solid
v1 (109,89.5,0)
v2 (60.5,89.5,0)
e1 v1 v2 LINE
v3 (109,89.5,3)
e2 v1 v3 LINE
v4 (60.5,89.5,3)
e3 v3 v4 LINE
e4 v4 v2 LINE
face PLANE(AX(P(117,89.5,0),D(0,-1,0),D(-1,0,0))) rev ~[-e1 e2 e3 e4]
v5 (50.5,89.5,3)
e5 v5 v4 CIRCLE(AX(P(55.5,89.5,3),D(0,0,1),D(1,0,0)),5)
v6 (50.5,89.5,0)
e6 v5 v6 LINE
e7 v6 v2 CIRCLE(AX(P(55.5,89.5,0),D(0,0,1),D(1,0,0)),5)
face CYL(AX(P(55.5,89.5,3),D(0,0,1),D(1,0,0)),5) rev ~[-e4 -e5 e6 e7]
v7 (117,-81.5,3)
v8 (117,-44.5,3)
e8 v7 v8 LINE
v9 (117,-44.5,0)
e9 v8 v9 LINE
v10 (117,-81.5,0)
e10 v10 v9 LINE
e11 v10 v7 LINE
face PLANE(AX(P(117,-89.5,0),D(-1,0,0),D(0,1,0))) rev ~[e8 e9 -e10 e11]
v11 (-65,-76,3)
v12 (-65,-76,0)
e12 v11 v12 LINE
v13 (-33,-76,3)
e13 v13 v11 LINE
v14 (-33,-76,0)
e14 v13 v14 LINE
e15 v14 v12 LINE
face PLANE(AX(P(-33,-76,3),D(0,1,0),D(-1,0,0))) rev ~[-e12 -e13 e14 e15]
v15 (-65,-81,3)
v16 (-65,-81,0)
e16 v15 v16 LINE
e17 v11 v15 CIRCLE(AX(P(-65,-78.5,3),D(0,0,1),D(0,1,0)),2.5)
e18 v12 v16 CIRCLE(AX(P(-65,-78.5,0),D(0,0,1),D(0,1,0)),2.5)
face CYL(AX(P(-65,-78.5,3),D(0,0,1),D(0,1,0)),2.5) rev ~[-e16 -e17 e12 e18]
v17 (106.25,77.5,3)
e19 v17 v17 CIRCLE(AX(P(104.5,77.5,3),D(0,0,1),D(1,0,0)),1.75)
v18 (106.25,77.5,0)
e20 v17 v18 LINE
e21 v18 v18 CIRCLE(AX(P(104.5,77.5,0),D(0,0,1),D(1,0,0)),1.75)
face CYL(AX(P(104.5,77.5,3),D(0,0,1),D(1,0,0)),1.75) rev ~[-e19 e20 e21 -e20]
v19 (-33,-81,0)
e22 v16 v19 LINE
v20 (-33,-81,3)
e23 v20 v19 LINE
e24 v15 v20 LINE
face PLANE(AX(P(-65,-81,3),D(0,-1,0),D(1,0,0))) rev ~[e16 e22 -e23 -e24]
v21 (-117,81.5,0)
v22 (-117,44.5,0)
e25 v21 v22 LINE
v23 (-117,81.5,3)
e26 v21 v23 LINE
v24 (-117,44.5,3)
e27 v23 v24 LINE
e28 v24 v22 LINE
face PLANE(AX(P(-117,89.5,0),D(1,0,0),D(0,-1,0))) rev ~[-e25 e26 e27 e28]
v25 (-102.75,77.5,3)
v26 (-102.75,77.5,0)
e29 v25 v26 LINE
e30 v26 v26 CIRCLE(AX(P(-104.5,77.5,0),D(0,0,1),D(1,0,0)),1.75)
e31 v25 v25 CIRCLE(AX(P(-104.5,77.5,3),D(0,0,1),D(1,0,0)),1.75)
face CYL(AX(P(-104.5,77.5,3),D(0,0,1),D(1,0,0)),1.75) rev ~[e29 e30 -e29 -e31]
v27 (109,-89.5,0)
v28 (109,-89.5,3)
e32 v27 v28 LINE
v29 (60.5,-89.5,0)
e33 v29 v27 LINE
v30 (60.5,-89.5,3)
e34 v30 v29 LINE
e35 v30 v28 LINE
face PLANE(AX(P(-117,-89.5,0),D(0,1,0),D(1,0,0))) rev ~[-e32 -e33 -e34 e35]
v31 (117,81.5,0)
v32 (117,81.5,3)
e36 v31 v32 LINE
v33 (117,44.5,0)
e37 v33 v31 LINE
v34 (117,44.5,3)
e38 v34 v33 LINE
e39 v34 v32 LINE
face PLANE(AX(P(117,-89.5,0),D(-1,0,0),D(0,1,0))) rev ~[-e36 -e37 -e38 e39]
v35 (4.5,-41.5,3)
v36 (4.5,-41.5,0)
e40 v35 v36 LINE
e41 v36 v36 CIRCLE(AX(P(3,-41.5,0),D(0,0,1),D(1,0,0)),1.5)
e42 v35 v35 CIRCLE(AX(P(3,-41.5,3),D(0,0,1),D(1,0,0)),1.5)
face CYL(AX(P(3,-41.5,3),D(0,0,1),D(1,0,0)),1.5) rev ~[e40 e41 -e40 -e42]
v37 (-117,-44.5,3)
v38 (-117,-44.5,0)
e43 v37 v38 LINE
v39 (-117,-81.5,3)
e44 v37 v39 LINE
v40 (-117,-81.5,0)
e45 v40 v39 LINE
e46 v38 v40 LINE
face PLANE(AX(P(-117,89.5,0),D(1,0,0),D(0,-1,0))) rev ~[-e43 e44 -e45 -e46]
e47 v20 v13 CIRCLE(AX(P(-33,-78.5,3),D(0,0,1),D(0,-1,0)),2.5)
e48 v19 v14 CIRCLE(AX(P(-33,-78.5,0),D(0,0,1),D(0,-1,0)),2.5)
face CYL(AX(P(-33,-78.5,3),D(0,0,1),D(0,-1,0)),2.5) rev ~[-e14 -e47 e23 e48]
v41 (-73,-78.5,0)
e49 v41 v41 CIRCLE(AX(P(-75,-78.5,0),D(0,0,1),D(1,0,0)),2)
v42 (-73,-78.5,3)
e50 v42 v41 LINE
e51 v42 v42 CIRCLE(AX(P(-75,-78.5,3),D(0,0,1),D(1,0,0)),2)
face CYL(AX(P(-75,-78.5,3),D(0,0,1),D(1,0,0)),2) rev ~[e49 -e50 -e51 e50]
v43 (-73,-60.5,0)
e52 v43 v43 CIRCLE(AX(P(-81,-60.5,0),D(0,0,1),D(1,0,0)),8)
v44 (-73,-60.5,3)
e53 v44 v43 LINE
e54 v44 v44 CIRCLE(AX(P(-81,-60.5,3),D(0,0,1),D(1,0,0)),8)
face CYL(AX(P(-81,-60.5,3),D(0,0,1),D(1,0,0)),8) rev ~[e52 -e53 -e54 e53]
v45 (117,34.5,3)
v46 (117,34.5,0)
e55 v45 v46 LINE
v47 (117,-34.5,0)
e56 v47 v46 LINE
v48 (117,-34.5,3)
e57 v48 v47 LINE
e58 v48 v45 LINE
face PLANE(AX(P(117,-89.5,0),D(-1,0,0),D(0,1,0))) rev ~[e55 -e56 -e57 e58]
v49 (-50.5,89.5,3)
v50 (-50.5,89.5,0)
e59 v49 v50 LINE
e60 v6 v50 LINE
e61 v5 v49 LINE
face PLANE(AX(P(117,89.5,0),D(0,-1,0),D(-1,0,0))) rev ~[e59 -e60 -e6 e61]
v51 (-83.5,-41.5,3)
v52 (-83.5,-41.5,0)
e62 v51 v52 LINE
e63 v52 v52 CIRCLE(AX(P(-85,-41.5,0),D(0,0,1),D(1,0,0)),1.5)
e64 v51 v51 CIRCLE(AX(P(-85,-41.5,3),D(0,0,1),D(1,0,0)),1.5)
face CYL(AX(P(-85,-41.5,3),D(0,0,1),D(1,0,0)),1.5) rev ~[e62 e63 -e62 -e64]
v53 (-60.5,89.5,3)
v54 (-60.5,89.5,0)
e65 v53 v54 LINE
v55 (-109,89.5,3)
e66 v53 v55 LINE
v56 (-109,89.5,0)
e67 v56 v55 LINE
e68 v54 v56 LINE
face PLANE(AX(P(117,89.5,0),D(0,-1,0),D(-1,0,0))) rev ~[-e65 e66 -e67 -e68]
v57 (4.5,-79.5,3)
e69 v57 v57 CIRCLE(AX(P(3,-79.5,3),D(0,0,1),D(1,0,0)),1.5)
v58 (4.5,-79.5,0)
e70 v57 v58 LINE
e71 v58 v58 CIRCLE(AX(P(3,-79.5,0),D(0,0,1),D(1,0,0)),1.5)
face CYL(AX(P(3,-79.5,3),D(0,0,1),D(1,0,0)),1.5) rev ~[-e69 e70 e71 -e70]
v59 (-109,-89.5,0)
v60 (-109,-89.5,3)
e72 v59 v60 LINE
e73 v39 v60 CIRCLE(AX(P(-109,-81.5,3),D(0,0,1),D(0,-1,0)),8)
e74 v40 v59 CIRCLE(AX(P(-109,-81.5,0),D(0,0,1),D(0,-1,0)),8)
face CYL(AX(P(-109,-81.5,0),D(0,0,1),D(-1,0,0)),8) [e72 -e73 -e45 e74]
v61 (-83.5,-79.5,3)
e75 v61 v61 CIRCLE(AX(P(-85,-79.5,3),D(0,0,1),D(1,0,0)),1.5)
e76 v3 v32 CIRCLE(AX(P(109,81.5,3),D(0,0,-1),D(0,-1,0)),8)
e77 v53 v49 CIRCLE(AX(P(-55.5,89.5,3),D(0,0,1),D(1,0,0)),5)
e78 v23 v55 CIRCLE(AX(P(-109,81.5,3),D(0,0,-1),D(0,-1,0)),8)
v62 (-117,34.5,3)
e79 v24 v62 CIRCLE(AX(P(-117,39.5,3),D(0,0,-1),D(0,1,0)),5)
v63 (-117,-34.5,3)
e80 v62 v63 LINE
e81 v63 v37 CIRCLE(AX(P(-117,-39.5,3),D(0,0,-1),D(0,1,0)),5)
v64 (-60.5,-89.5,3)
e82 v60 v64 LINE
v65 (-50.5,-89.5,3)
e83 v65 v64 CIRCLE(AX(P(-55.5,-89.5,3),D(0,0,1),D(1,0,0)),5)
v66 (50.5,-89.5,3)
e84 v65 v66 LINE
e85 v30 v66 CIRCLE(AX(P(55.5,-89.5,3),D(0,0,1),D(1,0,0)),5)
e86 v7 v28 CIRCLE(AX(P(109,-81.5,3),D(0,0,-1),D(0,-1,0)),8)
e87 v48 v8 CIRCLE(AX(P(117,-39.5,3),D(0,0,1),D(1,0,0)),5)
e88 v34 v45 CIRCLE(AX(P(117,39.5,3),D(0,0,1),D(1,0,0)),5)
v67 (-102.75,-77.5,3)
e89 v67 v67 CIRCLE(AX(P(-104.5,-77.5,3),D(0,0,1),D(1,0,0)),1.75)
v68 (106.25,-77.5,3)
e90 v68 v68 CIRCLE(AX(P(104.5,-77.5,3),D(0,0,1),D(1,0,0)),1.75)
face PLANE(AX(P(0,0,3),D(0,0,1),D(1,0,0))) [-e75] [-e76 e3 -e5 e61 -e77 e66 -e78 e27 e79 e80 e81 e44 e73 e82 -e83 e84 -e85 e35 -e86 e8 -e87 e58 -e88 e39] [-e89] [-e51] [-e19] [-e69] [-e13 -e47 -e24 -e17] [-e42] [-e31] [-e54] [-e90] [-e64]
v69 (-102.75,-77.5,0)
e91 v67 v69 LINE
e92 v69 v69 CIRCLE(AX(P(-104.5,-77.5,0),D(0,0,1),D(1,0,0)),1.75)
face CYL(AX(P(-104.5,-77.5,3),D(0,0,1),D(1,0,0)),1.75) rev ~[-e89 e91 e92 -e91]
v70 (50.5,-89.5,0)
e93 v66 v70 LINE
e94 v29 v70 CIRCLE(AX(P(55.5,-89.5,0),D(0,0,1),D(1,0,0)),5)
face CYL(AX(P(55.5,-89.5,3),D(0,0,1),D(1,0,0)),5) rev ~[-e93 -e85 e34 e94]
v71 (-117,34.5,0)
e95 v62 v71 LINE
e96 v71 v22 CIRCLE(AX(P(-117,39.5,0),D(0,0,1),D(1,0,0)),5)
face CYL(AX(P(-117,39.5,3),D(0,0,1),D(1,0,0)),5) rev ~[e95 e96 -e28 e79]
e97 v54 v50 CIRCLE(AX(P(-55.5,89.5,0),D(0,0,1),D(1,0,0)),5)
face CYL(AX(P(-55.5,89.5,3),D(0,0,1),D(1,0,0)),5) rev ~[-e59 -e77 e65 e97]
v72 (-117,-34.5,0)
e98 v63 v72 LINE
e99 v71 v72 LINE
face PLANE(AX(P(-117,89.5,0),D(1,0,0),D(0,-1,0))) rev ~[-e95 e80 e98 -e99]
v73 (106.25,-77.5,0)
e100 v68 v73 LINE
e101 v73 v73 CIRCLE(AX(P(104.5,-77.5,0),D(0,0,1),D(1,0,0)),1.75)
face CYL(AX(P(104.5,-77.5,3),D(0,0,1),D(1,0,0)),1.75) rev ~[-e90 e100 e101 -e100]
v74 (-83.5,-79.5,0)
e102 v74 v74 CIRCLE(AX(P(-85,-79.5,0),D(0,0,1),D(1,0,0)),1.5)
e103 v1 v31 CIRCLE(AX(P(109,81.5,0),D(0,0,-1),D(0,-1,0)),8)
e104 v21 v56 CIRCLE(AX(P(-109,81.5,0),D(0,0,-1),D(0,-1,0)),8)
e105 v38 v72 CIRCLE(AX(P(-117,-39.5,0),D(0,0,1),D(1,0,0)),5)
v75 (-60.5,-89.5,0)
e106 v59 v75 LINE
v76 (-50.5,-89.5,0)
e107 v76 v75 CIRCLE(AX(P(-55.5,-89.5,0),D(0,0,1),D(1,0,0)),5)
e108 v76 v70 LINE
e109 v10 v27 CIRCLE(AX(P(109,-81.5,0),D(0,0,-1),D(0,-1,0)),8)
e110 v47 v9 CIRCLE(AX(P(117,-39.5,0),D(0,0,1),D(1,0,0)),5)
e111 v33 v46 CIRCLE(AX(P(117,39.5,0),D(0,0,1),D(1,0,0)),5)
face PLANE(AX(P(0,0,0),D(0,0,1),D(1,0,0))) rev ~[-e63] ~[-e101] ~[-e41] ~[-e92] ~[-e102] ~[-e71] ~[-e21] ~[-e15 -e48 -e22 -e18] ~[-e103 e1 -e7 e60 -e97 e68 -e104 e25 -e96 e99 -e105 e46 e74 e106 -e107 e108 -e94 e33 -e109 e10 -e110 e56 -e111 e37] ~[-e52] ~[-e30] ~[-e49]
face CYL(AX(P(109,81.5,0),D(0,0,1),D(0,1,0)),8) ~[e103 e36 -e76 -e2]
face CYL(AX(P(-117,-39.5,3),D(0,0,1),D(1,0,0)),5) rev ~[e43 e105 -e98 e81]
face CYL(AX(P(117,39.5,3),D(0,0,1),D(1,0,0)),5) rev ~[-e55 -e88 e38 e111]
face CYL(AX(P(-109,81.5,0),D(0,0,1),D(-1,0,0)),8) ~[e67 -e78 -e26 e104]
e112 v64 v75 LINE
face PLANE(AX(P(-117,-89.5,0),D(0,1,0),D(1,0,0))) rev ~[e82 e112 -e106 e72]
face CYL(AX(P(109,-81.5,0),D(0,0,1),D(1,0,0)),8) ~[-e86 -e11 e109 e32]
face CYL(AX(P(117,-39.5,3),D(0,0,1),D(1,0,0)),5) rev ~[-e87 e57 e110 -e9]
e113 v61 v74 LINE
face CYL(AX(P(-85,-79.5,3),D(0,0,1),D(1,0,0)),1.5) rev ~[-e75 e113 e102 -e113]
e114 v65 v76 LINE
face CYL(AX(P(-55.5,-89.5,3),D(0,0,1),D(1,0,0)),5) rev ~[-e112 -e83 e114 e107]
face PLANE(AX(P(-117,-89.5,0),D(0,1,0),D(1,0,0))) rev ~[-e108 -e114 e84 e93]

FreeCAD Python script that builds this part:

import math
import FreeCAD as App
import Part
import Sketcher


def edges_at(feature, points):
    """Names of the edges that pass closest to the given points."""
    edges = feature.Shape.Edges
    near = lambda p: min(range(len(edges)), key=lambda i: edges[i].distToShape(Part.Vertex(*p))[0])
    return sorted({f"Edge{near(p) + 1}" for p in points})

doc = App.newDocument("Part")
body = doc.addObject("PartDesign::Body", "Body")

# Sketch on XY plane
sketch1 = body.newObject("Sketcher::SketchObject", "Sketch")
sketch1.AttachmentSupport = (doc.getObject("XY_Plane"), [""])
sketch1.MapMode = "FlatFace"
sketch1.addGeometry([
    Part.LineSegment(App.Vector(-117, 90, 0), App.Vector(-117, -90, 0)),
    Part.LineSegment(App.Vector(-117, -90, 0), App.Vector(117, -90, 0)),
    Part.LineSegment(App.Vector(117, -90, 0), App.Vector(117, 90, 0)),
    Part.LineSegment(App.Vector(117, 90, 0), App.Vector(-117, 90, 0)),
], False)
sketch1.addConstraint([
    Sketcher.Constraint("Coincident", 0, 2, 1, 1),
    Sketcher.Constraint("Coincident", 1, 2, 2, 1),
    Sketcher.Constraint("Coincident", 2, 2, 3, 1),
    Sketcher.Constraint("Coincident", 3, 2, 0, 1),
    Sketcher.Constraint("Vertical", 0),
    Sketcher.Constraint("Horizontal", 1),
    Sketcher.Constraint("Vertical", 2),
    Sketcher.Constraint("Horizontal", 3),
    Sketcher.Constraint("Symmetric", 0, 2, 2, 2, -1, 1),
    Sketcher.Constraint("DistanceX", 1, 1, 1, 2, 234.0),
    Sketcher.Constraint("DistanceY", 0, 2, 0, 1, 179.0),
])
pad1 = body.newObject("PartDesign::Pad", "Pad")
pad1.Profile = sketch1
pad1.Length = 3
doc.recompute()

fillet = body.newObject("PartDesign::Fillet", "Fillet")
fillet.Base = (pad1, edges_at(pad1, [
    (117, -89.5, 1.5),
    (-117, -89.5, 1.5),
    (-117, 89.5, 1.5),
    (117, 89.5, 1.5),
]))
fillet.Radius = 8

# Sketch on XY plane
sketch2 = body.newObject("Sketcher::SketchObject", "Sketch001")
sketch2.AttachmentSupport = (doc.getObject("XY_Plane"), [""])
sketch2.MapMode = "FlatFace"
sketch2.AttachmentOffset = App.Placement(App.Vector(0, 0, 3), App.Rotation())
sketch2.addGeometry([
    Part.LineSegment(App.Vector(117, -44, 0), App.Vector(117, -34, 0)),  # 0
    Part.ArcOfCircle(Part.Circle(App.Vector(117, -40, 0), App.Vector(0, 0, 1), 5), math.radians(90), math.radians(270)),  # 1
    Part.ArcOfCircle(Part.Circle(App.Vector(56, -90, 0), App.Vector(0, 0, 1), 5), math.radians(0), math.radians(180)),  # 2
    Part.LineSegment(App.Vector(50, -90, 0), App.Vector(60, -90, 0)),  # 3
    Part.LineSegment(App.Vector(-117, -34, 0), App.Vector(-117, -44, 0)),  # 4
    Part.ArcOfCircle(Part.Circle(App.Vector(-117, -40, 0), App.Vector(0, 0, 1), 5), math.radians(-90), math.radians(90)),  # 5
    Part.ArcOfCircle(Part.Circle(App.Vector(-56, -90, 0), App.Vector(0, 0, 1), 5), math.radians(0), math.radians(180)),  # 6
    Part.LineSegment(App.Vector(-60, -90, 0), App.Vector(-50, -90, 0)),  # 7
    Part.LineSegment(App.Vector(-117, 44, 0), App.Vector(-117, 34, 0)),  # 8
    Part.ArcOfCircle(Part.Circle(App.Vector(-117, 40, 0), App.Vector(0, 0, 1), 5), math.radians(-90), math.radians(90)),  # 9
    Part.ArcOfCircle(Part.Circle(App.Vector(117, 40, 0), App.Vector(0, 0, 1), 5), math.radians(90), math.radians(270)),  # 10
    Part.LineSegment(App.Vector(117, 34, 0), App.Vector(117, 44, 0)),  # 11
    Part.LineSegment(App.Vector(60, 90, 0), App.Vector(50, 90, 0)),  # 12
    Part.ArcOfCircle(Part.Circle(App.Vector(56, 90, 0), App.Vector(0, 0, 1), 5), math.radians(180), math.radians(360)),  # 13
    Part.ArcOfCircle(Part.Circle(App.Vector(-56, 90, 0), App.Vector(0, 0, 1), 5), math.radians(180), math.radians(360)),  # 14
    Part.LineSegment(App.Vector(-50, 90, 0), App.Vector(-60, 90, 0)),  # 15
], False)
sketch2.addConstraint([
    Sketcher.Constraint("Coincident", 0, 1, 1, 2),
    Sketcher.Constraint("Coincident", 1, 1, 0, 2),
    Sketcher.Constraint("Coincident", 2, 1, 3, 2),
    Sketcher.Constraint("Coincident", 3, 1, 2, 2),
    Sketcher.Constraint("Coincident", 4, 1, 5, 2),
    Sketcher.Constraint("Coincident", 5, 1, 4, 2),
    Sketcher.Constraint("Coincident", 6, 1, 7, 2),
    Sketcher.Constraint("Coincident", 7, 1, 6, 2),
    Sketcher.Constraint("Coincident", 8, 1, 9, 2),
    Sketcher.Constraint("Coincident", 9, 1, 8, 2),
    Sketcher.Constraint("Coincident", 10, 1, 11, 2),
    Sketcher.Constraint("Coincident", 11, 1, 10, 2),
    Sketcher.Constraint("Coincident", 12, 1, 13, 2),
    Sketcher.Constraint("Coincident", 13, 1, 12, 2),
    Sketcher.Constraint("Coincident", 14, 1, 15, 2),
    Sketcher.Constraint("Coincident", 15, 1, 14, 2),
    Sketcher.Constraint("Vertical", 0),
    Sketcher.Constraint("Horizontal", 3),
    Sketcher.Constraint("Vertical", 4),
    Sketcher.Constraint("Horizontal", 7),
    Sketcher.Constraint("Vertical", 8),
    Sketcher.Constraint("Vertical", 11),
    Sketcher.Constraint("Horizontal", 12),
    Sketcher.Constraint("Horizontal", 15),
    Sketcher.Constraint("Equal", 1, 2),
    Sketcher.Constraint("Equal", 2, 5),
    Sketcher.Constraint("Equal", 5, 6),
    Sketcher.Constraint("Equal", 6, 9),
    Sketcher.Constraint("Equal", 9, 10),
    Sketcher.Constraint("Equal", 10, 13),
    Sketcher.Constraint("Equal", 13, 14),
    Sketcher.Constraint("Symmetric", 1, 3, 9, 3, -1, 1),
    Sketcher.Constraint("Symmetric", 5, 3, 10, 3, -1, 1),
    Sketcher.Constraint("Symmetric", 6, 3, 13, 3, -1, 1),
    Sketcher.Constraint("Symmetric", 2, 3, 14, 3, -1, 1),
    Sketcher.Constraint("Symmetric", 1, 3, 5, 3, -2),
    Sketcher.Constraint("Symmetric", 2, 3, 6, 3, -2),
    Sketcher.Constraint("Horizontal", 6, 3, 2, 1),
    Sketcher.Constraint("Horizontal", 3, 1, 6, 1),
    Sketcher.Constraint("Horizontal", 14, 3, 12, 1),
    Sketcher.Constraint("Horizontal", 13, 1, 14, 1),
    Sketcher.Constraint("Vertical", 10, 3, 0, 1),
    Sketcher.Constraint("Vertical", 9, 3, 4, 1),
    Sketcher.Constraint("Vertical", 5, 1, 8, 1),
    Sketcher.Constraint("Vertical", 1, 1, 10, 1),
    Sketcher.Constraint("Radius", 1, 5.0),
    Sketcher.Constraint("DistanceY", 2, 3, 1, 3, 50.0),
    Sketcher.Constraint("DistanceX", 2, 3, 1, 3, 61.5),
    Sketcher.Constraint("DistanceX", -1, 1, 1, 3, 117.0),
    Sketcher.Constraint("DistanceY", 5, 3, 9, 3, 79.0),
])
pocket1 = body.newObject("PartDesign::Pocket", "Pocket")
pocket1.Profile = sketch2
pocket1.Type = "ThroughAll"

# Sketch on XY plane
sketch3 = body.newObject("Sketcher::SketchObject", "Sketch002")
sketch3.AttachmentSupport = (doc.getObject("XY_Plane"), [""])
sketch3.MapMode = "FlatFace"
sketch3.AttachmentOffset = App.Placement(App.Vector(0, 0, 3), App.Rotation())
sketch3.addGeometry([
    Part.Circle(App.Vector(104.5, -77.5, 0), App.Vector(0, 0, 1), 1.8),
    Part.Circle(App.Vector(-104.5, -77.5, 0), App.Vector(0, 0, 1), 1.8),
    Part.Circle(App.Vector(104.5, 77.5, 0), App.Vector(0, 0, 1), 1.8),
    Part.Circle(App.Vector(-104.5, 77.5, 0), App.Vector(0, 0, 1), 1.8),
], False)
sketch3.addConstraint([
    Sketcher.Constraint("Equal", 0, 1),
    Sketcher.Constraint("Equal", 1, 2),
    Sketcher.Constraint("Equal", 2, 3),
    Sketcher.Constraint("Symmetric", 1, 3, 2, 3, -1, 1),
    Sketcher.Constraint("Symmetric", 0, 3, 3, 3, -1, 1),
    Sketcher.Constraint("Symmetric", 0, 3, 1, 3, -2),
    Sketcher.Constraint("Diameter", 0, 3.5),
    Sketcher.Constraint("DistanceX", 1, 3, 0, 3, 209.0),
    Sketcher.Constraint("DistanceY", 0, 3, 2, 3, 155.0),
])
pocket2 = body.newObject("PartDesign::Pocket", "Pocket001")
pocket2.Profile = sketch3
pocket2.Length = 10

# Sketch on XY plane
sketch4 = body.newObject("Sketcher::SketchObject", "Sketch003")
sketch4.AttachmentSupport = (doc.getObject("XY_Plane"), [""])
sketch4.MapMode = "FlatFace"
sketch4.AttachmentOffset = App.Placement(App.Vector(0, 0, 3), App.Rotation())
sketch4.addGeometry([
    Part.Circle(App.Vector(-81, -60.5, 0), App.Vector(0, 0, 1), 8),  # 0
    Part.Circle(App.Vector(-75, -78.5, 0), App.Vector(0, 0, 1), 2),  # 1
    Part.ArcOfCircle(Part.Circle(App.Vector(-33, -78.5, 0), App.Vector(0, 0, 1), 2.5), math.radians(-90), math.radians(90)),  # 2
    Part.LineSegment(App.Vector(-33, -76, 0), App.Vector(-65, -76, 0)),  # 3
    Part.ArcOfCircle(Part.Circle(App.Vector(-65, -78.5, 0), App.Vector(0, 0, 1), 2.5), math.radians(90), math.radians(270)),  # 4
    Part.LineSegment(App.Vector(-65, -81, 0), App.Vector(-33, -81, 0)),  # 5
    Part.Circle(App.Vector(-85, -79.5, 0), App.Vector(0, 0, 1), 1.5),  # 6
    Part.Circle(App.Vector(3, -79.5, 0), App.Vector(0, 0, 1), 1.5),  # 7
    Part.Circle(App.Vector(-85, -41.5, 0), App.Vector(0, 0, 1), 1.5),  # 8
    Part.Circle(App.Vector(3, -41.5, 0), App.Vector(0, 0, 1), 1.5),  # 9
], False)
sketch4.addConstraint([
    Sketcher.Constraint("Tangent", 2, 2, 3, 1),
    Sketcher.Constraint("Tangent", 3, 2, 4, 1),
    Sketcher.Constraint("Tangent", 4, 2, 5, 1),
    Sketcher.Constraint("Tangent", 5, 2, 2, 1),
    Sketcher.Constraint("Horizontal", 3),
    Sketcher.Constraint("Horizontal", 5),
    Sketcher.Constraint("Equal", 6, 7),
    Sketcher.Constraint("Equal", 7, 8),
    Sketcher.Constraint("Equal", 8, 9),
    Sketcher.Constraint("Horizontal", 1, 3, 2, 3),
    Sketcher.Constraint("Horizontal", 6, 3, 7, 3),
    Sketcher.Constraint("Horizontal", 8, 3, 9, 3),
    Sketcher.Constraint("Vertical", 6, 3, 8, 3),
    Sketcher.Constraint("Vertical", 7, 3, 9, 3),
    Sketcher.Constraint("Diameter", 0, 16.0),
    Sketcher.Constraint("Diameter", 1, 4.0),
    Sketcher.Constraint("Diameter", 6, 3.0),
    Sketcher.Constraint("Radius", 2, 2.5),
    Sketcher.Constraint("DistanceX", 3, 2, 3, 1, 32.0),
    Sketcher.Constraint("DistanceX", -1, 1, 7, 3, 3.0),
    Sketcher.Constraint("DistanceX", 0, 3, 1, 3, 6.0),
    Sketcher.Constraint("DistanceY", 1, 3, 0, 3, 18.0),
    Sketcher.Constraint("DistanceX", 1, 3, 4, 3, 10.0),
    Sketcher.Constraint("DistanceX", 6, 3, 1, 3, 10.0),
    Sketcher.Constraint("DistanceY", 6, 3, 0, 3, 19.0),
    Sketcher.Constraint("DistanceY", 0, 3, 8, 3, 19.0),
    Sketcher.Constraint("DistanceX", 0, 3, -1, 1, 81.0),
    Sketcher.Constraint("DistanceY", 2, 2, -1, 1, 76.0),
])
pocket3 = body.newObject("PartDesign::Pocket", "Pocket002")
pocket3.Profile = sketch4
pocket3.Type = "ThroughAll"

doc.recompute()
